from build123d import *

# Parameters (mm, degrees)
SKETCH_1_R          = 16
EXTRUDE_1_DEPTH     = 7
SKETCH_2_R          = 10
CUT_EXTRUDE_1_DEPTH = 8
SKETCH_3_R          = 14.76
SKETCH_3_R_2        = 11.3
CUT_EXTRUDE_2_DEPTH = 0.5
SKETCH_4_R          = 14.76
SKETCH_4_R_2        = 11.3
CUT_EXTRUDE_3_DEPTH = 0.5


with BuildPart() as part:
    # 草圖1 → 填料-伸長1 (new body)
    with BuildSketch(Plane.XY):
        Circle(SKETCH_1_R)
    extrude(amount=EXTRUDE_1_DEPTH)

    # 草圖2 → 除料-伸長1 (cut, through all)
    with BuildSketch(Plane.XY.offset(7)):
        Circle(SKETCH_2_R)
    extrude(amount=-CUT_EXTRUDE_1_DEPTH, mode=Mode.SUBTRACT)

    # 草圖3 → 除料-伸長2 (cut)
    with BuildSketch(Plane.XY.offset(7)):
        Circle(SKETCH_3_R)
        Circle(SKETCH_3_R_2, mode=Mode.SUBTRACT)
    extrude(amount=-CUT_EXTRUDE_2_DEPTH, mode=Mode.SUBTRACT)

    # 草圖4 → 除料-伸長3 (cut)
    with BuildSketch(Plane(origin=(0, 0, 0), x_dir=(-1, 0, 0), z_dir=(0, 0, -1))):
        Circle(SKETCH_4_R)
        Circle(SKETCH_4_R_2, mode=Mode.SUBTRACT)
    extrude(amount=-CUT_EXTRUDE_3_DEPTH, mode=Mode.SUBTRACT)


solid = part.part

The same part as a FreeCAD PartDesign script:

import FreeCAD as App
import Part
import Sketcher
from FreeCAD import Vector
Q = App.Units.Quantity

doc = App.newDocument("Part")
body = doc.addObject("PartDesign::Body", "Body")

# Sketch on XY plane
sketch1 = doc.addObject("Sketcher::SketchObject", "Sketch")
body.addObject(sketch1)
sketch1.AttachmentSupport = (doc.XY_Plane, [""])
sketch1.MapMode = "FlatFace"
sketch1.addGeometry(Part.Circle(Vector(0, 0, 0), Vector(0, 0, 1), 16), False)
sketch1.addConstraint(Sketcher.Constraint("Coincident", 0, 3, -1, 1))
sketch1.addConstraint(Sketcher.Constraint("Diameter", 0, Q("32 mm")))
pad1 = doc.addObject("PartDesign::Pad", "Pad")
body.addObject(pad1)
pad1.Profile = sketch1
pad1.Length = 7

# Sketch on XY plane
sketch2 = doc.addObject("Sketcher::SketchObject", "Sketch001")
body.addObject(sketch2)
sketch2.AttachmentSupport = (doc.XY_Plane, [""])
sketch2.MapMode = "FlatFace"
sketch2.AttachmentOffset = App.Placement(Vector(0, 0, 7), App.Rotation())
sketch2.addGeometry(Part.Circle(Vector(0, 0, 0), Vector(0, 0, 1), 10), False)
sketch2.addConstraint(Sketcher.Constraint("Coincident", 0, 3, -1, 1))
sketch2.addConstraint(Sketcher.Constraint("Diameter", 0, Q("20 mm")))
pocket1 = doc.addObject("PartDesign::Pocket", "Pocket")
body.addObject(pocket1)
pocket1.Profile = sketch2
pocket1.Type = "ThroughAll"

# Sketch on XY plane
sketch3 = doc.addObject("Sketcher::SketchObject", "Sketch002")
body.addObject(sketch3)
sketch3.AttachmentSupport = (doc.XY_Plane, [""])
sketch3.MapMode = "FlatFace"
sketch3.AttachmentOffset = App.Placement(Vector(0, 0, 7), App.Rotation())
sketch3.addGeometry(Part.Circle(Vector(0, 0, 0), Vector(0, 0, 1), 14.76), False)
sketch3.addGeometry(Part.Circle(Vector(0, 0, 0), Vector(0, 0, 1), 11.3), False)
sketch3.addConstraint(Sketcher.Constraint("Coincident", 0, 3, -1, 1))
sketch3.addConstraint(Sketcher.Constraint("Coincident", 1, 3, -1, 1))
sketch3.addConstraint(Sketcher.Constraint("Diameter", 1, Q("22.6 mm")))
sketch3.addConstraint(Sketcher.Constraint("Diameter", 0, Q("29.52 mm")))
pocket2 = doc.addObject("PartDesign::Pocket", "Pocket001")
body.addObject(pocket2)
pocket2.Profile = sketch3
pocket2.Length = 0.5

# Sketch on XY plane
sketch4 = doc.addObject("Sketcher::SketchObject", "Sketch003")
body.addObject(sketch4)
sketch4.AttachmentSupport = (doc.XY_Plane, [""])
sketch4.MapMode = "FlatFace"
sketch4.addGeometry(Part.Circle(Vector(0, 0, 0), Vector(0, 0, 1), 14.76), False)
sketch4.addGeometry(Part.Circle(Vector(0, 0, 0), Vector(0, 0, 1), 11.3), False)
sketch4.addConstraint(Sketcher.Constraint("Coincident", 0, 3, -1, 1))
sketch4.addConstraint(Sketcher.Constraint("Coincident", 1, 3, -1, 1))
sketch4.addConstraint(Sketcher.Constraint("Diameter", 1, Q("22.6 mm")))
sketch4.addConstraint(Sketcher.Constraint("Diameter", 0, Q("29.52 mm")))
pocket3 = doc.addObject("PartDesign::Pocket", "Pocket002")
body.addObject(pocket3)
pocket3.Profile = sketch4
pocket3.Length = 0.5
pocket3.Reversed = True

doc.recompute()
